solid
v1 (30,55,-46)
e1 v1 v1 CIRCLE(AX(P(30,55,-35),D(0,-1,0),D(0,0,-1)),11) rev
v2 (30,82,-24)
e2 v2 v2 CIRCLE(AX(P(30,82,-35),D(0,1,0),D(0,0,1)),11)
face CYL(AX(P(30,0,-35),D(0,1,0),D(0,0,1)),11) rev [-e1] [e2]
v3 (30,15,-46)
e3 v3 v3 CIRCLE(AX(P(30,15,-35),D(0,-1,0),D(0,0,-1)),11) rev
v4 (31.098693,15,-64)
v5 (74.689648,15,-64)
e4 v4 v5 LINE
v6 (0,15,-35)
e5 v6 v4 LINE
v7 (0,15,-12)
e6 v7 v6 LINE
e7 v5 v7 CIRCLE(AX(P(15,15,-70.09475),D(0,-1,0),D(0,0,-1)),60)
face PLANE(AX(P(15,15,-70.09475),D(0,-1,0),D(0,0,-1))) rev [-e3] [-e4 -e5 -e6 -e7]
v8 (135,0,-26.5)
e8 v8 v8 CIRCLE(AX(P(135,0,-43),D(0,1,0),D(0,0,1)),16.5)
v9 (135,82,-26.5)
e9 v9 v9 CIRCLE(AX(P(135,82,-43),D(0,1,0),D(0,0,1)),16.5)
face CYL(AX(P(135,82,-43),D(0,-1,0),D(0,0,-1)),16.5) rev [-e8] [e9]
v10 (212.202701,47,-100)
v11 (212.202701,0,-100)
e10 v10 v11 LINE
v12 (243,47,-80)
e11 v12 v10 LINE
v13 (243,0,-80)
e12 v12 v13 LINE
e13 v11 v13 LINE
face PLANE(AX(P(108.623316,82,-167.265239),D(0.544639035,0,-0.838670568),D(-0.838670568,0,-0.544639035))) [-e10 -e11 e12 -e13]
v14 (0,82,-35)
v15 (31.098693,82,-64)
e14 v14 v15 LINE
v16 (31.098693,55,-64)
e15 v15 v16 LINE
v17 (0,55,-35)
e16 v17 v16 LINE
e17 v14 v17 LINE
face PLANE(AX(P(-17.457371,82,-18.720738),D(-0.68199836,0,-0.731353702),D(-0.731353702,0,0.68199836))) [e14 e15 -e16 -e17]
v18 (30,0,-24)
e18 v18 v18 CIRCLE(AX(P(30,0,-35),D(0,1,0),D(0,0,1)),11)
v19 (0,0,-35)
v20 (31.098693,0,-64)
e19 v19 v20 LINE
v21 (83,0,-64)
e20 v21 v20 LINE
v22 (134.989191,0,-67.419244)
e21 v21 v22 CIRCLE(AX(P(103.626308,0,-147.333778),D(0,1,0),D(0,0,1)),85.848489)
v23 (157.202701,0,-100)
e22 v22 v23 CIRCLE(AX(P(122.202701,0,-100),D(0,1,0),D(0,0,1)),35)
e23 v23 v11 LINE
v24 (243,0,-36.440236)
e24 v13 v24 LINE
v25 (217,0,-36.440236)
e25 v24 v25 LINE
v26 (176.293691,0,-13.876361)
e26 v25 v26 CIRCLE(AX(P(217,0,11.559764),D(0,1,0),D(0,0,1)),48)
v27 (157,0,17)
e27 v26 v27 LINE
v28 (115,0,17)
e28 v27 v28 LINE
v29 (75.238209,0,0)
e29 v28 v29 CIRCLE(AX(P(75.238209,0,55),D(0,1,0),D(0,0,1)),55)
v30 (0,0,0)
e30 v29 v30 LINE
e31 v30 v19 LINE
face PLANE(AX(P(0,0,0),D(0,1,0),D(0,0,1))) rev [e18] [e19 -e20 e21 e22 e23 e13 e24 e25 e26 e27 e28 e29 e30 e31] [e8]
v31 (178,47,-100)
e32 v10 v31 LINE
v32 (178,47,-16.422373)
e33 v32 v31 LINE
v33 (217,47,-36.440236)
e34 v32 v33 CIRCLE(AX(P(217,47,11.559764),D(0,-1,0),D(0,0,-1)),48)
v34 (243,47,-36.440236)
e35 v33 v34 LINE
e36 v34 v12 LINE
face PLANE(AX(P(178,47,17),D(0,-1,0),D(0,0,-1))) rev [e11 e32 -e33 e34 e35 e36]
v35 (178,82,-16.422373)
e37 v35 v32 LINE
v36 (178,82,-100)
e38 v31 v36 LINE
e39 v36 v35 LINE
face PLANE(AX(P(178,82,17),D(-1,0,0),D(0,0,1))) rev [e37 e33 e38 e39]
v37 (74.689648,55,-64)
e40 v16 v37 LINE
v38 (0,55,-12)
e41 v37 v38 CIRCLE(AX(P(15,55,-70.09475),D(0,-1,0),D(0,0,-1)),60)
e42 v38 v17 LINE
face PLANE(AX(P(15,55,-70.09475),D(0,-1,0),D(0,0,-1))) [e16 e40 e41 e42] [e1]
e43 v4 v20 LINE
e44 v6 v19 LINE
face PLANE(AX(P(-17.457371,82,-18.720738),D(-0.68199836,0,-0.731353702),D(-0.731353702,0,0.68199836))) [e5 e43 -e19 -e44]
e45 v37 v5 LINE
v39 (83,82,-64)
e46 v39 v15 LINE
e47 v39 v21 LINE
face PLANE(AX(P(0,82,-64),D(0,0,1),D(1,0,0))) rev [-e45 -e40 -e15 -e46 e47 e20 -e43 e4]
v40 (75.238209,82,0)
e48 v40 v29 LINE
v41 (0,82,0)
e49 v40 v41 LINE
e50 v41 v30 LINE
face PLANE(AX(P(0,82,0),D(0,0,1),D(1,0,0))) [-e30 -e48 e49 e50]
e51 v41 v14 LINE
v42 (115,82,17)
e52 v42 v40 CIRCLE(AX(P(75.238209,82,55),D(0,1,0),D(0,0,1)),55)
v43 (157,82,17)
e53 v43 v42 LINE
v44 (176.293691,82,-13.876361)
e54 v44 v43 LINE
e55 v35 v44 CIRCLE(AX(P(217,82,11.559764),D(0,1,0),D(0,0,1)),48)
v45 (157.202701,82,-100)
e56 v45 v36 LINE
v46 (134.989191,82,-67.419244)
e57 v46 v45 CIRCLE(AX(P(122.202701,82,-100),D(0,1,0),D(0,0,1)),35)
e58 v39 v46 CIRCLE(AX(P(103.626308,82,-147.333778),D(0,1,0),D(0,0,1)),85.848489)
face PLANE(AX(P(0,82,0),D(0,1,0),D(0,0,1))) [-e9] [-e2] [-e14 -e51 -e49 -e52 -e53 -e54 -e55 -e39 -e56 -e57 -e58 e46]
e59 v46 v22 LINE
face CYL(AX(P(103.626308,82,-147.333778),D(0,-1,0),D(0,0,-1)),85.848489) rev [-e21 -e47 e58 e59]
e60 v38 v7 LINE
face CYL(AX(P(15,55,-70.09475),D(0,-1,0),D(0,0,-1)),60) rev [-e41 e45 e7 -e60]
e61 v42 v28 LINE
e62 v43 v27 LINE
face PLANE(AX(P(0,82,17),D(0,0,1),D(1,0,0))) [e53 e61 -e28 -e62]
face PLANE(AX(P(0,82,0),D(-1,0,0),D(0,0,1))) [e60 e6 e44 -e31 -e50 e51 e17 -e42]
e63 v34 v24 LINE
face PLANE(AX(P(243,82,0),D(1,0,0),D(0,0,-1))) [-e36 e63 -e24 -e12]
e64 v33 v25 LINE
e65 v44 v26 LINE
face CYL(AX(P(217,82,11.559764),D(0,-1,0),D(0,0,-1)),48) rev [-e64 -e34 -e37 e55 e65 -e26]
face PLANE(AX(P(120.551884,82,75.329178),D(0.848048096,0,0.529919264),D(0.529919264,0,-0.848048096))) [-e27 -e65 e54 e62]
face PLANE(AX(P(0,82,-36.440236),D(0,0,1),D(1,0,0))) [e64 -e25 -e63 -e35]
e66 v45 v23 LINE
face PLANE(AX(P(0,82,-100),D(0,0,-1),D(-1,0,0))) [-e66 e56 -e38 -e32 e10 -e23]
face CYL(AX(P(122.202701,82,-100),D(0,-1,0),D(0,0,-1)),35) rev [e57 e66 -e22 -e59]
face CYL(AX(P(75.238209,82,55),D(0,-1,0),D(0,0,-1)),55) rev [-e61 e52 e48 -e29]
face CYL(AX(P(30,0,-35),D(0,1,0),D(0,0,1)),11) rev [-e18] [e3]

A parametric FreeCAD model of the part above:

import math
import FreeCAD as App
import Part
import Sketcher
Q = App.Units.Quantity

doc = App.newDocument("Part")
params = doc.addObject("Spreadsheet::Sheet", "Params")
for row, (alias, value) in enumerate([
    ("sketch1_diameter", "33 mm"),
    ("sketch1_radius", "35 mm"),
    ("sketch1_radius2", "55 mm"),
    ("sketch1_radius3", "48 mm"),
    ("sketch1_width", "55 mm"),
    ("pad1_length", "82 mm"),
    ("sketch2_diameter", "22 mm"),
    ("sketch3_width", "65 mm"),
    ("sketch3_height", "35 mm"),
    ("sketch4_radius", "60 mm"),
    ("sketch4_height", "23 mm"),
    ("pocket3_length", "40 mm"),
], start=1):
    params.set(f"A{row}", alias)
    params.set(f"B{row}", "=" + value)
    params.setAlias(f"B{row}", alias)

body = doc.addObject("PartDesign::Body", "Body")

# Sketch on XZ plane
sketch1 = body.newObject("Sketcher::SketchObject", "Sketch")
sketch1.AttachmentSupport = (doc.getObject("XZ_Plane"), [""])
sketch1.MapMode = "FlatFace"
sketch1.addGeometry([
    Part.LineSegment(App.Vector(212, -100, 0), App.Vector(157, -100, 0)),  # 0
    Part.ArcOfCircle(Part.Circle(App.Vector(122, -100, 0), App.Vector(0, 0, 1), 35), math.radians(0), math.radians(69)),  # 1
    Part.ArcOfCircle(Part.Circle(App.Vector(104, -147, 0), App.Vector(0, 0, 1), 86), math.radians(69), math.radians(104)),  # 2
    Part.LineSegment(App.Vector(83, -64, 0), App.Vector(31, -64, 0)),  # 3
    Part.LineSegment(App.Vector(31, -64, 0), App.Vector(0, -35, 0)),  # 4
    Part.LineSegment(App.Vector(0, -35, 0), App.Vector(0, 0, 0)),  # 5
    Part.LineSegment(App.Vector(0, 0, 0), App.Vector(75, 0, 0)),  # 6
    Part.ArcOfCircle(Part.Circle(App.Vector(75, 55, 0), App.Vector(0, 0, 1), 55), math.radians(-90), math.radians(-44)),  # 7
    Part.LineSegment(App.Vector(115, 17, 0), App.Vector(157, 17, 0)),  # 8
    Part.LineSegment(App.Vector(157, 17, 0), App.Vector(176, -14, 0)),  # 9
    Part.ArcOfCircle(Part.Circle(App.Vector(217, 12, 0), App.Vector(0, 0, 1), 48), math.radians(-148), math.radians(-90)),  # 10
    Part.LineSegment(App.Vector(217, -36, 0), App.Vector(243, -36, 0)),  # 11
    Part.LineSegment(App.Vector(243, -36, 0), App.Vector(243, -80, 0)),  # 12
    Part.LineSegment(App.Vector(243, -80, 0), App.Vector(212, -100, 0)),  # 13
    Part.Circle(App.Vector(135, -43, 0), App.Vector(0, 0, 1), 16),  # 14
], False)
sketch1.addConstraint([
    Sketcher.Constraint("Coincident", 0, 2, 1, 1),
    Sketcher.Constraint("Tangent", 1, 2, 2, 1),
    Sketcher.Constraint("Coincident", 2, 2, 3, 1),
    Sketcher.Constraint("Coincident", 3, 2, 4, 1),
    Sketcher.Constraint("Coincident", 4, 2, 5, 1),
    Sketcher.Constraint("Coincident", 5, 2, 6, 1),
    Sketcher.Constraint("Tangent", 6, 2, 7, 1),
    Sketcher.Constraint("Coincident", 7, 2, 8, 1),
    Sketcher.Constraint("Coincident", 8, 2, 9, 1),
    Sketcher.Constraint("Tangent", 9, 2, 10, 1),
    Sketcher.Constraint("Tangent", 10, 2, 11, 1),
    Sketcher.Constraint("Coincident", 11, 2, 12, 1),
    Sketcher.Constraint("Coincident", 12, 2, 13, 1),
    Sketcher.Constraint("Coincident", 13, 2, 0, 1),
    Sketcher.Constraint("Horizontal", 0),
    Sketcher.Constraint("Horizontal", 3),
    Sketcher.Constraint("Vertical", 5),
    Sketcher.Constraint("Horizontal", 6),
    Sketcher.Constraint("Horizontal", 8),
    Sketcher.Constraint("Horizontal", 11),
    Sketcher.Constraint("Vertical", 12),
    Sketcher.Constraint("Coincident", 5, 2, -1, 1),
    Sketcher.Constraint("Horizontal", 1, 3, 0, 2),
    Sketcher.Constraint("Diameter", 14, 33.0),
    Sketcher.Constraint("Radius", 1, 35.0),
    Sketcher.Constraint("Radius", 7, 55.0),
    Sketcher.Constraint("Radius", 10, 48.0),
    Sketcher.Constraint("DistanceX", 0, 2, 0, 1, 55.0),
    Sketcher.Constraint("DistanceX", 8, 1, 8, 2, 42.0),
    Sketcher.Constraint("DistanceX", 11, 1, 11, 2, 26.0),
    Sketcher.Constraint("DistanceY", 5, 1, 5, 2, 35.0),
    Sketcher.Constraint("Angle", 4, Q("137 deg")),
    Sketcher.Constraint("Angle", 9, Q("-58 deg")),
    Sketcher.Constraint("Angle", 13, Q("-147 deg")),
    Sketcher.Constraint("DistanceY", 1, 3, -1, 1, 100.0),
    Sketcher.Constraint("DistanceX", -1, 1, 10, 3, 217.0),
    Sketcher.Constraint("DistanceX", -1, 1, 14, 3, 135.0),
    Sketcher.Constraint("DistanceY", 14, 3, -1, 1, 43.0),
    Sketcher.Constraint("DistanceX", -1, 1, 2, 2, 83.0),
    Sketcher.Constraint("DistanceY", 2, 2, -1, 1, 64.0),
    Sketcher.Constraint("DistanceX", -1, 1, 7, 2, 115.0),
    Sketcher.Constraint("DistanceY", -1, 1, 7, 2, 17.0),
    Sketcher.Constraint("DistanceY", 12, 2, -1, 1, 80.0),
    Sketcher.Constraint("Radius", 2, 85.848489),
])
sketch1.setExpression("Constraints[23]", "Params.sketch1_diameter")
sketch1.setExpression("Constraints[24]", "Params.sketch1_radius")
sketch1.setExpression("Constraints[25]", "Params.sketch1_radius2")
sketch1.setExpression("Constraints[26]", "Params.sketch1_radius3")
sketch1.setExpression("Constraints[27]", "Params.sketch1_width")
pad1 = body.newObject("PartDesign::Pad", "Pad")
pad1.Profile = sketch1
pad1.setExpression("Length", "Params.pad1_length")
pad1.Reversed = True

# Sketch on XZ plane
sketch2 = body.newObject("Sketcher::SketchObject", "Sketch001")
sketch2.AttachmentSupport = (doc.getObject("XZ_Plane"), [""])
sketch2.MapMode = "FlatFace"
sketch2.AttachmentOffset = App.Placement(App.Vector(0, 0, -82), App.Rotation())
sketch2.addGeometry(Part.Circle(App.Vector(30, -35, 0), App.Vector(0, 0, 1), 11), False)
sketch2.addConstraint([
    Sketcher.Constraint("Diameter", 0, 22.0),
    Sketcher.Constraint("DistanceX", -1, 1, 0, 3, 30.0),
    Sketcher.Constraint("DistanceY", 0, 3, -1, 1, 35.0),
])
sketch2.setExpression("Constraints[0]", "Params.sketch2_diameter")
pocket1 = body.newObject("PartDesign::Pocket", "Pocket")
pocket1.Profile = sketch2
pocket1.Type = "ThroughAll"
pocket1.Reversed = True

# Sketch on XY plane
sketch3 = body.newObject("Sketcher::SketchObject", "Sketch002")
sketch3.AttachmentSupport = (doc.getObject("XY_Plane"), [""])
sketch3.MapMode = "FlatFace"
sketch3.AttachmentOffset = App.Placement(App.Vector(0, 0, -100), App.Rotation())
sketch3.addGeometry([
    Part.LineSegment(App.Vector(243, 82, 0), App.Vector(243, 47, 0)),
    Part.LineSegment(App.Vector(243, 47, 0), App.Vector(178, 47, 0)),
    Part.LineSegment(App.Vector(178, 47, 0), App.Vector(178, 82, 0)),
    Part.LineSegment(App.Vector(178, 82, 0), App.Vector(243, 82, 0)),
], False)
sketch3.addConstraint([
    Sketcher.Constraint("Coincident", 0, 2, 1, 1),
    Sketcher.Constraint("Coincident", 1, 2, 2, 1),
    Sketcher.Constraint("Coincident", 2, 2, 3, 1),
    Sketcher.Constraint("Coincident", 3, 2, 0, 1),
    Sketcher.Constraint("Vertical", 0),
    Sketcher.Constraint("Horizontal", 1),
    Sketcher.Constraint("Vertical", 2),
    Sketcher.Constraint("Horizontal", 3),
    Sketcher.Constraint("DistanceX", 1, 2, 1, 1, 65.0),
    Sketcher.Constraint("DistanceY", 0, 2, 0, 1, 35.0),
    Sketcher.Constraint("DistanceX", -1, 1, 0, 2, 243.0),
    Sketcher.Constraint("DistanceY", -1, 1, 0, 2, 47.0),
])
sketch3.setExpression("Constraints[8]", "Params.sketch3_width")
sketch3.setExpression("Constraints[9]", "Params.sketch3_height")
pocket2 = body.newObject("PartDesign::Pocket", "Pocket001")
pocket2.Profile = sketch3
pocket2.Type = "ThroughAll"
pocket2.Reversed = True

# Sketch on XZ plane
sketch4 = body.newObject("Sketcher::SketchObject", "Sketch003")
sketch4.AttachmentSupport = (doc.getObject("XZ_Plane"), [""])
sketch4.MapMode = "FlatFace"
sketch4.AttachmentOffset = App.Placement(App.Vector(0, 0, -15), App.Rotation())
sketch4.addGeometry([
    Part.LineSegment(App.Vector(0, -12, 0), App.Vector(0, -35, 0)),
    Part.LineSegment(App.Vector(0, -35, 0), App.Vector(31, -64, 0)),
    Part.LineSegment(App.Vector(31, -64, 0), App.Vector(75, -64, 0)),
    Part.ArcOfCircle(Part.Circle(App.Vector(15, -70, 0), App.Vector(0, 0, 1), 60), math.radians(6), math.radians(104)),
], False)
sketch4.addConstraint([
    Sketcher.Constraint("Coincident", 0, 2, 1, 1),
    Sketcher.Constraint("Coincident", 1, 2, 2, 1),
    Sketcher.Constraint("Coincident", 2, 2, 3, 1),
    Sketcher.Constraint("Coincident", 3, 2, 0, 1),
    Sketcher.Constraint("Vertical", 0),
    Sketcher.Constraint("Horizontal", 2),
    Sketcher.Constraint("PointOnObject", 0, 2, -2),
    Sketcher.Constraint("Radius", 3, 60.0),
    Sketcher.Constraint("DistanceY", 0, 2, 0, 1, 23.0),
    Sketcher.Constraint("Angle", 1, Q("-43 deg")),
    Sketcher.Constraint("DistanceX", -1, 1, 3, 3, 15.0),
    Sketcher.Constraint("DistanceY", 0, 2, -1, 1, 35.0),
    Sketcher.Constraint("DistanceY", 1, 2, -1, 1, 64.0),
])
sketch4.setExpression("Constraints[7]", "Params.sketch4_radius")
sketch4.setExpression("Constraints[8]", "Params.sketch4_height")
pocket3 = body.newObject("PartDesign::Pocket", "Pocket002")
pocket3.Profile = sketch4
pocket3.setExpression("Length", "Params.pocket3_length")

doc.recompute()
